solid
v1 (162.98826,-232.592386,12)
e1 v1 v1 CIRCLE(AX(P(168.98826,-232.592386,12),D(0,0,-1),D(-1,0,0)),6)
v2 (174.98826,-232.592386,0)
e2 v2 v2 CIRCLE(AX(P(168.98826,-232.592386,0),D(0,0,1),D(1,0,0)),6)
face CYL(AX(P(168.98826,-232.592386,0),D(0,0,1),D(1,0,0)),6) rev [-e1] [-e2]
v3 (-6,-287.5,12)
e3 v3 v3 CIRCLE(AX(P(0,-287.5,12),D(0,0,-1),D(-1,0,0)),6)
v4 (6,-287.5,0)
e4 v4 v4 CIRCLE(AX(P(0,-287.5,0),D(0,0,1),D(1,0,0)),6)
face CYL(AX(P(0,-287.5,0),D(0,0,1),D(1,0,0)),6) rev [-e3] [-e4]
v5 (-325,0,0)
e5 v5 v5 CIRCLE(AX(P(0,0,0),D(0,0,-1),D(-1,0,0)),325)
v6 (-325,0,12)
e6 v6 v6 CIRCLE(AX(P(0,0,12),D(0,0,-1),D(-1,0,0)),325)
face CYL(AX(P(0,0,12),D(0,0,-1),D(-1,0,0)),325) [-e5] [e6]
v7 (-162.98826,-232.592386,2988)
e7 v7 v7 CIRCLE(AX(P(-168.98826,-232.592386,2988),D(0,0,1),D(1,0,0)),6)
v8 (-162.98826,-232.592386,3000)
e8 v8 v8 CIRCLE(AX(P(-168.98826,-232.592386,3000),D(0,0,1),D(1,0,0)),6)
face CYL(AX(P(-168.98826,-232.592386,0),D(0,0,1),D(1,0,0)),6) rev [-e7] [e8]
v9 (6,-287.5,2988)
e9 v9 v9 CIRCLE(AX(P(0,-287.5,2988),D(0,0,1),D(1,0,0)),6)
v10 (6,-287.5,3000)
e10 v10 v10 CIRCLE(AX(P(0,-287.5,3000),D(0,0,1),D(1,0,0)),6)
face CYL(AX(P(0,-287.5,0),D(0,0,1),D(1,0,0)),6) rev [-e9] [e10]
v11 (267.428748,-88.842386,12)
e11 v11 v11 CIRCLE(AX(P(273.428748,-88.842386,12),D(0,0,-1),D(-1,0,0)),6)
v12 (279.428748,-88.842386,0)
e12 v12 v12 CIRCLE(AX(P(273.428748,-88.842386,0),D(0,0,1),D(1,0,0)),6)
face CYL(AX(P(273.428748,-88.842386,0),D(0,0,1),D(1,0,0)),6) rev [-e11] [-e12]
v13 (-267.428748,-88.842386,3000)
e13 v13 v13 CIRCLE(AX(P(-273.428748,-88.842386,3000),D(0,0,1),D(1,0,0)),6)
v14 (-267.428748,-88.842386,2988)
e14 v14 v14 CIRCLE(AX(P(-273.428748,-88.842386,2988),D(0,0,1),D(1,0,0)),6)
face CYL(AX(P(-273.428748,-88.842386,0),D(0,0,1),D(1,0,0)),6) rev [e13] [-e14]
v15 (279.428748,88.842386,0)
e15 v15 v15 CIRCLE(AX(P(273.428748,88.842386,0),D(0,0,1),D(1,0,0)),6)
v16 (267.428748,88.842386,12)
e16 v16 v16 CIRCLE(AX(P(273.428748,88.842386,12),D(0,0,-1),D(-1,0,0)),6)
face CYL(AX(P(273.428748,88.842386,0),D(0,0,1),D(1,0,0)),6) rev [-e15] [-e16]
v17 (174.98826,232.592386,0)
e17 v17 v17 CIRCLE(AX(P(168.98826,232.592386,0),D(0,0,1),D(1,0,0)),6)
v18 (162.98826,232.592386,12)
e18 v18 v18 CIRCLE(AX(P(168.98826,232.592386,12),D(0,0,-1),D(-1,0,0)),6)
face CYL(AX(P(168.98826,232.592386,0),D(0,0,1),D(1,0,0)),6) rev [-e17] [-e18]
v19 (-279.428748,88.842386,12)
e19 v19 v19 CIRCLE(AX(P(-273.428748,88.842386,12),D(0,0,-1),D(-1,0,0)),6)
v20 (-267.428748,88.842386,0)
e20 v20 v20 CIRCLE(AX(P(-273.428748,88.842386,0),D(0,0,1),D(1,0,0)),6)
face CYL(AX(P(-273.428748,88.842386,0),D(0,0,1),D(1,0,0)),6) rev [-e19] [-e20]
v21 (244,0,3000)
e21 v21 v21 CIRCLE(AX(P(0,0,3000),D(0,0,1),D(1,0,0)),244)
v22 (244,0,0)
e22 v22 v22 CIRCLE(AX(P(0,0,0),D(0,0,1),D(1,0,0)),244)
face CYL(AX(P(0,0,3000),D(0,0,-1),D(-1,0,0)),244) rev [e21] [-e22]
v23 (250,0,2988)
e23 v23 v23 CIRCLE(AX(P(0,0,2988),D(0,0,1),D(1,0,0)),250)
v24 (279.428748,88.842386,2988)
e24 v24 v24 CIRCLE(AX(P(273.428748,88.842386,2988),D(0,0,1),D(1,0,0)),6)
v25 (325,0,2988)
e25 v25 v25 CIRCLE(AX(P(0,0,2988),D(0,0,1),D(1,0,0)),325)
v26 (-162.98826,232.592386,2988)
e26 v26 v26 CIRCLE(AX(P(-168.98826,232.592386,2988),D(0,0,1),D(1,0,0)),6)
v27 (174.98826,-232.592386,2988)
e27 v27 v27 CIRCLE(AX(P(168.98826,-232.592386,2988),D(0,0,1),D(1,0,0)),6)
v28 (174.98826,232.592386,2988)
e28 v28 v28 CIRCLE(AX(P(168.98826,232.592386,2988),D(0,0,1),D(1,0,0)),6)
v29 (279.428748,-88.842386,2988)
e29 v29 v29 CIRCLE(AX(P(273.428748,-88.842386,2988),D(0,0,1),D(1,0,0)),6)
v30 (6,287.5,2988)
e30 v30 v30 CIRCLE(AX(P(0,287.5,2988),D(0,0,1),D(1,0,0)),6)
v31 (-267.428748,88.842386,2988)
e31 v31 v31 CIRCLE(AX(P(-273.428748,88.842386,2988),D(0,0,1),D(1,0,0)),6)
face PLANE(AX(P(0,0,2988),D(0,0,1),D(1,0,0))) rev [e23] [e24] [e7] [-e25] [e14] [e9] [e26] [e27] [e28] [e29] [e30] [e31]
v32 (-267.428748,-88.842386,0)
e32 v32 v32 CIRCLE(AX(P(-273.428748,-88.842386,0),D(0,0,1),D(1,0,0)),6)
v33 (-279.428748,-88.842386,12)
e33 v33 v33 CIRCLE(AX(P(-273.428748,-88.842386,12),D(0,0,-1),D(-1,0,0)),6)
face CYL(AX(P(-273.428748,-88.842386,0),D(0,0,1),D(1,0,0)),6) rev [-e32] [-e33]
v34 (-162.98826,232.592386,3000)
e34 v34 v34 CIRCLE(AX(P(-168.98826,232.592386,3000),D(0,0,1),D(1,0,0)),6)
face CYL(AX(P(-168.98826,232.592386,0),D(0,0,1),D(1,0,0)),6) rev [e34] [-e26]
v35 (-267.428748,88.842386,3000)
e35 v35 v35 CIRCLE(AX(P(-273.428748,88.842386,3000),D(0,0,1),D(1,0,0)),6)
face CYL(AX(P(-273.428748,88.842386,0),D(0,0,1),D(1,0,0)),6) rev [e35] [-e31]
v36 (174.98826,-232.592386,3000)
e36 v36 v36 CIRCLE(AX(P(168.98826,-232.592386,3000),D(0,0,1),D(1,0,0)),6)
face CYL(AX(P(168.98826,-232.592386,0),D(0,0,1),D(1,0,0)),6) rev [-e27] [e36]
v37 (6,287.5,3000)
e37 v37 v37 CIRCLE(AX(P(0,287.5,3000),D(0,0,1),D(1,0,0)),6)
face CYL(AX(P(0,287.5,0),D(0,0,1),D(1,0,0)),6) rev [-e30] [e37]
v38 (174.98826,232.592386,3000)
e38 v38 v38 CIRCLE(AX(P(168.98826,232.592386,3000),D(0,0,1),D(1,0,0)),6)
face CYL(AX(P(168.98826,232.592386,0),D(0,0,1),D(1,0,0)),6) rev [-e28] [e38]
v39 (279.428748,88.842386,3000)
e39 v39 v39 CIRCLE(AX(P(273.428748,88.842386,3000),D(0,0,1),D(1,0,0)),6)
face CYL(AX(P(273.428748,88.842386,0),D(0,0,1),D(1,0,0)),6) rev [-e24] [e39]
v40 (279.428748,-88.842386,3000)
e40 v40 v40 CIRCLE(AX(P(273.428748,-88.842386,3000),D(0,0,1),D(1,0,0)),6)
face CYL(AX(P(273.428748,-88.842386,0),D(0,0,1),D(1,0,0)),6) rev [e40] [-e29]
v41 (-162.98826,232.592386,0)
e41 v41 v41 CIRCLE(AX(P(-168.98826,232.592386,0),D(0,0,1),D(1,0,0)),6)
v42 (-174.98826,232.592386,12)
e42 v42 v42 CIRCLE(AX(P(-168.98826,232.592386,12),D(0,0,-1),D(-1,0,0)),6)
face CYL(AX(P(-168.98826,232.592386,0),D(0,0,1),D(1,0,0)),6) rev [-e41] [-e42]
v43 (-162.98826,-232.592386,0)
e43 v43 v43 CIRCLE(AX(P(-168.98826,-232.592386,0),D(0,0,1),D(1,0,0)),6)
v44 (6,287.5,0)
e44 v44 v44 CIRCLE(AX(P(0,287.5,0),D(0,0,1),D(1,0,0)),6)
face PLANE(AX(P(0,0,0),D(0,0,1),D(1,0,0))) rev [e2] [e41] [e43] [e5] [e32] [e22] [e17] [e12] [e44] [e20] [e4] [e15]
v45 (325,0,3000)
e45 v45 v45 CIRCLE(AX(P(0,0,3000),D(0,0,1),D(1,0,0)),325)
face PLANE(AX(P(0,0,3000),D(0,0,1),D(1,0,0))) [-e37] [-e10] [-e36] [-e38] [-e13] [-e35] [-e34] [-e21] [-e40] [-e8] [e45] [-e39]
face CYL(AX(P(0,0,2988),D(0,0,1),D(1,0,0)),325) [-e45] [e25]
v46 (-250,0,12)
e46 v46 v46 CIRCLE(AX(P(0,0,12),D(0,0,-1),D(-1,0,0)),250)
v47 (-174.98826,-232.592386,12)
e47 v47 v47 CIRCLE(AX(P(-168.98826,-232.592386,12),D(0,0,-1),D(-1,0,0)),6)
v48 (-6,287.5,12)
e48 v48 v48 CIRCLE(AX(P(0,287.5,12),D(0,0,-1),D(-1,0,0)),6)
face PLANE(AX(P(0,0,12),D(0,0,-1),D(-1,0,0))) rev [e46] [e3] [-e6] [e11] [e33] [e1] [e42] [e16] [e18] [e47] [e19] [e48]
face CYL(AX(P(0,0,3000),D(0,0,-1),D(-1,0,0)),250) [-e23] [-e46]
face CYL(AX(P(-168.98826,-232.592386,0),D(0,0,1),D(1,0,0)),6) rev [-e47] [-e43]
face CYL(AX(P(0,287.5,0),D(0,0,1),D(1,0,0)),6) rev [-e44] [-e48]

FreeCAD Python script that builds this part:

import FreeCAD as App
import Part
import Sketcher
from FreeCAD import Vector
Q = App.Units.Quantity

doc = App.newDocument("Part")
params = doc.addObject("Spreadsheet::Sheet", "Params")
for row, (alias, value) in enumerate([
    ("sketch1_diameter", "500 mm"),
    ("sketch1_diameter2", "488 mm"),
    ("pad1_length", "3000 mm"),
    ("sketch2_diameter", "650 mm"),
    ("sketch2_diameter2", "500 mm"),
    ("pad2_length", "12 mm"),
    ("sketch3_diameter", "650 mm"),
    ("sketch3_diameter2", "500 mm"),
    ("pad3_length", "12 mm"),
    ("sketch4_diameter", "12 mm"),
], start=1):
    params.set(f"A{row}", alias)
    params.set(f"B{row}", "=" + value)
    params.setAlias(f"B{row}", alias)

body = doc.addObject("PartDesign::Body", "Body")

# Sketch on XY plane
sketch1 = body.newObject("Sketcher::SketchObject", "Sketch")
sketch1.AttachmentSupport = (doc.getObject("XY_Plane"), [""])
sketch1.MapMode = "FlatFace"
sketch1.addGeometry([
    Part.Circle(Vector(0, 0, 0), Vector(0, 0, 1), 250),
    Part.Circle(Vector(0, 0, 0), Vector(0, 0, 1), 244),
], False)
sketch1.addConstraint([
    Sketcher.Constraint("Coincident", 0, 3, -1, 1),
    Sketcher.Constraint("Coincident", 1, 3, -1, 1),
    Sketcher.Constraint("Diameter", 0, Q("500 mm")),
    Sketcher.Constraint("Diameter", 1, Q("488 mm")),
])
sketch1.setExpression("Constraints[2]", "Params.sketch1_diameter")
sketch1.setExpression("Constraints[3]", "Params.sketch1_diameter2")
pad1 = body.newObject("PartDesign::Pad", "Pad")
pad1.Profile = sketch1
pad1.setExpression("Length", "Params.pad1_length")

# Sketch on XY plane
sketch2 = body.newObject("Sketcher::SketchObject", "Sketch001")
sketch2.AttachmentSupport = (doc.getObject("XY_Plane"), [""])
sketch2.MapMode = "FlatFace"
sketch2.AttachmentOffset = App.Placement(Vector(0, 0, 2988), App.Rotation())
sketch2.addGeometry([
    Part.Circle(Vector(0, 0, 0), Vector(0, 0, 1), 325),
    Part.Circle(Vector(0, 0, 0), Vector(0, 0, 1), 250),
], False)
sketch2.addConstraint([
    Sketcher.Constraint("Coincident", 0, 3, -1, 1),
    Sketcher.Constraint("Coincident", 1, 3, -1, 1),
    Sketcher.Constraint("Diameter", 0, Q("650 mm")),
    Sketcher.Constraint("Diameter", 1, Q("500 mm")),
])
sketch2.setExpression("Constraints[2]", "Params.sketch2_diameter")
sketch2.setExpression("Constraints[3]", "Params.sketch2_diameter2")
pad2 = body.newObject("PartDesign::Pad", "Pad001")
pad2.Profile = sketch2
pad2.setExpression("Length", "Params.pad2_length")

# Sketch on XY plane
sketch3 = body.newObject("Sketcher::SketchObject", "Sketch002")
sketch3.AttachmentSupport = (doc.getObject("XY_Plane"), [""])
sketch3.MapMode = "FlatFace"
sketch3.addGeometry([
    Part.Circle(Vector(0, 0, 0), Vector(0, 0, 1), 325),
    Part.Circle(Vector(0, 0, 0), Vector(0, 0, 1), 250),
], False)
sketch3.addConstraint([
    Sketcher.Constraint("Coincident", 0, 3, -1, 1),
    Sketcher.Constraint("Coincident", 1, 3, -1, 1),
    Sketcher.Constraint("Diameter", 0, Q("650 mm")),
    Sketcher.Constraint("Diameter", 1, Q("500 mm")),
])
sketch3.setExpression("Constraints[2]", "Params.sketch3_diameter")
sketch3.setExpression("Constraints[3]", "Params.sketch3_diameter2")
pad3 = body.newObject("PartDesign::Pad", "Pad002")
pad3.Profile = sketch3
pad3.setExpression("Length", "Params.pad3_length")

# Sketch on XY plane
sketch4 = body.newObject("Sketcher::SketchObject", "Sketch003")
sketch4.AttachmentSupport = (doc.getObject("XY_Plane"), [""])
sketch4.MapMode = "FlatFace"
sketch4.AttachmentOffset = App.Placement(Vector(0, 0, 3000), App.Rotation())
sketch4.addGeometry([
    Part.Circle(Vector(0, 288, 0), Vector(0, 0, 1), 6),  # 0
    Part.Circle(Vector(169, 233, 0), Vector(0, 0, 1), 6),  # 1
    Part.Circle(Vector(273, 89, 0), Vector(0, 0, 1), 6),  # 2
    Part.Circle(Vector(273, -89, 0), Vector(0, 0, 1), 6),  # 3
    Part.Circle(Vector(169, -233, 0), Vector(0, 0, 1), 6),  # 4
    Part.Circle(Vector(0, -288, 0), Vector(0, 0, 1), 6),  # 5
    Part.Circle(Vector(-169, -233, 0), Vector(0, 0, 1), 6),  # 6
    Part.Circle(Vector(-273, -89, 0), Vector(0, 0, 1), 6),  # 7
    Part.Circle(Vector(-273, 89, 0), Vector(0, 0, 1), 6),  # 8
    Part.Circle(Vector(-169, 233, 0), Vector(0, 0, 1), 6),  # 9
], False)
sketch4.addConstraint([
    Sketcher.Constraint("Equal", 0, 1),
    Sketcher.Constraint("Equal", 1, 2),
    Sketcher.Constraint("Equal", 2, 3),
    Sketcher.Constraint("Equal", 3, 4),
    Sketcher.Constraint("Equal", 4, 5),
    Sketcher.Constraint("Equal", 5, 6),
    Sketcher.Constraint("Equal", 6, 7),
    Sketcher.Constraint("Equal", 7, 8),
    Sketcher.Constraint("Equal", 8, 9),
    Sketcher.Constraint("Symmetric", 0, 3, 5, 3, -1, 1),
    Sketcher.Constraint("Symmetric", 1, 3, 6, 3, -1, 1),
    Sketcher.Constraint("Symmetric", 2, 3, 7, 3, -1, 1),
    Sketcher.Constraint("Symmetric", 3, 3, 8, 3, -1, 1),
    Sketcher.Constraint("Symmetric", 4, 3, 9, 3, -1, 1),
    Sketcher.Constraint("Symmetric", 4, 3, 6, 3, -2),
    Sketcher.Constraint("Symmetric", 3, 3, 7, 3, -2),
    Sketcher.Constraint("PointOnObject", 0, 3, -2),
    Sketcher.Constraint("Diameter", 0, Q("12 mm")),
    Sketcher.Constraint("DistanceY", 5, 3, 0, 3, Q("575 mm")),
    Sketcher.Constraint("DistanceY", 2, 3, 1, 3, Q("143.75 mm")),
    Sketcher.Constraint("DistanceX", -1, 1, 1, 3, Q("168.98826 mm")),
    Sketcher.Constraint("DistanceX", -1, 1, 2, 3, Q("273.428748 mm")),
    Sketcher.Constraint("DistanceY", 3, 3, 2, 3, Q("177.684772 mm")),
])
sketch4.setExpression("Constraints[17]", "Params.sketch4_diameter")
pocket1 = body.newObject("PartDesign::Pocket", "Pocket")
pocket1.Profile = sketch4
pocket1.Type = "ThroughAll"

doc.recompute()
